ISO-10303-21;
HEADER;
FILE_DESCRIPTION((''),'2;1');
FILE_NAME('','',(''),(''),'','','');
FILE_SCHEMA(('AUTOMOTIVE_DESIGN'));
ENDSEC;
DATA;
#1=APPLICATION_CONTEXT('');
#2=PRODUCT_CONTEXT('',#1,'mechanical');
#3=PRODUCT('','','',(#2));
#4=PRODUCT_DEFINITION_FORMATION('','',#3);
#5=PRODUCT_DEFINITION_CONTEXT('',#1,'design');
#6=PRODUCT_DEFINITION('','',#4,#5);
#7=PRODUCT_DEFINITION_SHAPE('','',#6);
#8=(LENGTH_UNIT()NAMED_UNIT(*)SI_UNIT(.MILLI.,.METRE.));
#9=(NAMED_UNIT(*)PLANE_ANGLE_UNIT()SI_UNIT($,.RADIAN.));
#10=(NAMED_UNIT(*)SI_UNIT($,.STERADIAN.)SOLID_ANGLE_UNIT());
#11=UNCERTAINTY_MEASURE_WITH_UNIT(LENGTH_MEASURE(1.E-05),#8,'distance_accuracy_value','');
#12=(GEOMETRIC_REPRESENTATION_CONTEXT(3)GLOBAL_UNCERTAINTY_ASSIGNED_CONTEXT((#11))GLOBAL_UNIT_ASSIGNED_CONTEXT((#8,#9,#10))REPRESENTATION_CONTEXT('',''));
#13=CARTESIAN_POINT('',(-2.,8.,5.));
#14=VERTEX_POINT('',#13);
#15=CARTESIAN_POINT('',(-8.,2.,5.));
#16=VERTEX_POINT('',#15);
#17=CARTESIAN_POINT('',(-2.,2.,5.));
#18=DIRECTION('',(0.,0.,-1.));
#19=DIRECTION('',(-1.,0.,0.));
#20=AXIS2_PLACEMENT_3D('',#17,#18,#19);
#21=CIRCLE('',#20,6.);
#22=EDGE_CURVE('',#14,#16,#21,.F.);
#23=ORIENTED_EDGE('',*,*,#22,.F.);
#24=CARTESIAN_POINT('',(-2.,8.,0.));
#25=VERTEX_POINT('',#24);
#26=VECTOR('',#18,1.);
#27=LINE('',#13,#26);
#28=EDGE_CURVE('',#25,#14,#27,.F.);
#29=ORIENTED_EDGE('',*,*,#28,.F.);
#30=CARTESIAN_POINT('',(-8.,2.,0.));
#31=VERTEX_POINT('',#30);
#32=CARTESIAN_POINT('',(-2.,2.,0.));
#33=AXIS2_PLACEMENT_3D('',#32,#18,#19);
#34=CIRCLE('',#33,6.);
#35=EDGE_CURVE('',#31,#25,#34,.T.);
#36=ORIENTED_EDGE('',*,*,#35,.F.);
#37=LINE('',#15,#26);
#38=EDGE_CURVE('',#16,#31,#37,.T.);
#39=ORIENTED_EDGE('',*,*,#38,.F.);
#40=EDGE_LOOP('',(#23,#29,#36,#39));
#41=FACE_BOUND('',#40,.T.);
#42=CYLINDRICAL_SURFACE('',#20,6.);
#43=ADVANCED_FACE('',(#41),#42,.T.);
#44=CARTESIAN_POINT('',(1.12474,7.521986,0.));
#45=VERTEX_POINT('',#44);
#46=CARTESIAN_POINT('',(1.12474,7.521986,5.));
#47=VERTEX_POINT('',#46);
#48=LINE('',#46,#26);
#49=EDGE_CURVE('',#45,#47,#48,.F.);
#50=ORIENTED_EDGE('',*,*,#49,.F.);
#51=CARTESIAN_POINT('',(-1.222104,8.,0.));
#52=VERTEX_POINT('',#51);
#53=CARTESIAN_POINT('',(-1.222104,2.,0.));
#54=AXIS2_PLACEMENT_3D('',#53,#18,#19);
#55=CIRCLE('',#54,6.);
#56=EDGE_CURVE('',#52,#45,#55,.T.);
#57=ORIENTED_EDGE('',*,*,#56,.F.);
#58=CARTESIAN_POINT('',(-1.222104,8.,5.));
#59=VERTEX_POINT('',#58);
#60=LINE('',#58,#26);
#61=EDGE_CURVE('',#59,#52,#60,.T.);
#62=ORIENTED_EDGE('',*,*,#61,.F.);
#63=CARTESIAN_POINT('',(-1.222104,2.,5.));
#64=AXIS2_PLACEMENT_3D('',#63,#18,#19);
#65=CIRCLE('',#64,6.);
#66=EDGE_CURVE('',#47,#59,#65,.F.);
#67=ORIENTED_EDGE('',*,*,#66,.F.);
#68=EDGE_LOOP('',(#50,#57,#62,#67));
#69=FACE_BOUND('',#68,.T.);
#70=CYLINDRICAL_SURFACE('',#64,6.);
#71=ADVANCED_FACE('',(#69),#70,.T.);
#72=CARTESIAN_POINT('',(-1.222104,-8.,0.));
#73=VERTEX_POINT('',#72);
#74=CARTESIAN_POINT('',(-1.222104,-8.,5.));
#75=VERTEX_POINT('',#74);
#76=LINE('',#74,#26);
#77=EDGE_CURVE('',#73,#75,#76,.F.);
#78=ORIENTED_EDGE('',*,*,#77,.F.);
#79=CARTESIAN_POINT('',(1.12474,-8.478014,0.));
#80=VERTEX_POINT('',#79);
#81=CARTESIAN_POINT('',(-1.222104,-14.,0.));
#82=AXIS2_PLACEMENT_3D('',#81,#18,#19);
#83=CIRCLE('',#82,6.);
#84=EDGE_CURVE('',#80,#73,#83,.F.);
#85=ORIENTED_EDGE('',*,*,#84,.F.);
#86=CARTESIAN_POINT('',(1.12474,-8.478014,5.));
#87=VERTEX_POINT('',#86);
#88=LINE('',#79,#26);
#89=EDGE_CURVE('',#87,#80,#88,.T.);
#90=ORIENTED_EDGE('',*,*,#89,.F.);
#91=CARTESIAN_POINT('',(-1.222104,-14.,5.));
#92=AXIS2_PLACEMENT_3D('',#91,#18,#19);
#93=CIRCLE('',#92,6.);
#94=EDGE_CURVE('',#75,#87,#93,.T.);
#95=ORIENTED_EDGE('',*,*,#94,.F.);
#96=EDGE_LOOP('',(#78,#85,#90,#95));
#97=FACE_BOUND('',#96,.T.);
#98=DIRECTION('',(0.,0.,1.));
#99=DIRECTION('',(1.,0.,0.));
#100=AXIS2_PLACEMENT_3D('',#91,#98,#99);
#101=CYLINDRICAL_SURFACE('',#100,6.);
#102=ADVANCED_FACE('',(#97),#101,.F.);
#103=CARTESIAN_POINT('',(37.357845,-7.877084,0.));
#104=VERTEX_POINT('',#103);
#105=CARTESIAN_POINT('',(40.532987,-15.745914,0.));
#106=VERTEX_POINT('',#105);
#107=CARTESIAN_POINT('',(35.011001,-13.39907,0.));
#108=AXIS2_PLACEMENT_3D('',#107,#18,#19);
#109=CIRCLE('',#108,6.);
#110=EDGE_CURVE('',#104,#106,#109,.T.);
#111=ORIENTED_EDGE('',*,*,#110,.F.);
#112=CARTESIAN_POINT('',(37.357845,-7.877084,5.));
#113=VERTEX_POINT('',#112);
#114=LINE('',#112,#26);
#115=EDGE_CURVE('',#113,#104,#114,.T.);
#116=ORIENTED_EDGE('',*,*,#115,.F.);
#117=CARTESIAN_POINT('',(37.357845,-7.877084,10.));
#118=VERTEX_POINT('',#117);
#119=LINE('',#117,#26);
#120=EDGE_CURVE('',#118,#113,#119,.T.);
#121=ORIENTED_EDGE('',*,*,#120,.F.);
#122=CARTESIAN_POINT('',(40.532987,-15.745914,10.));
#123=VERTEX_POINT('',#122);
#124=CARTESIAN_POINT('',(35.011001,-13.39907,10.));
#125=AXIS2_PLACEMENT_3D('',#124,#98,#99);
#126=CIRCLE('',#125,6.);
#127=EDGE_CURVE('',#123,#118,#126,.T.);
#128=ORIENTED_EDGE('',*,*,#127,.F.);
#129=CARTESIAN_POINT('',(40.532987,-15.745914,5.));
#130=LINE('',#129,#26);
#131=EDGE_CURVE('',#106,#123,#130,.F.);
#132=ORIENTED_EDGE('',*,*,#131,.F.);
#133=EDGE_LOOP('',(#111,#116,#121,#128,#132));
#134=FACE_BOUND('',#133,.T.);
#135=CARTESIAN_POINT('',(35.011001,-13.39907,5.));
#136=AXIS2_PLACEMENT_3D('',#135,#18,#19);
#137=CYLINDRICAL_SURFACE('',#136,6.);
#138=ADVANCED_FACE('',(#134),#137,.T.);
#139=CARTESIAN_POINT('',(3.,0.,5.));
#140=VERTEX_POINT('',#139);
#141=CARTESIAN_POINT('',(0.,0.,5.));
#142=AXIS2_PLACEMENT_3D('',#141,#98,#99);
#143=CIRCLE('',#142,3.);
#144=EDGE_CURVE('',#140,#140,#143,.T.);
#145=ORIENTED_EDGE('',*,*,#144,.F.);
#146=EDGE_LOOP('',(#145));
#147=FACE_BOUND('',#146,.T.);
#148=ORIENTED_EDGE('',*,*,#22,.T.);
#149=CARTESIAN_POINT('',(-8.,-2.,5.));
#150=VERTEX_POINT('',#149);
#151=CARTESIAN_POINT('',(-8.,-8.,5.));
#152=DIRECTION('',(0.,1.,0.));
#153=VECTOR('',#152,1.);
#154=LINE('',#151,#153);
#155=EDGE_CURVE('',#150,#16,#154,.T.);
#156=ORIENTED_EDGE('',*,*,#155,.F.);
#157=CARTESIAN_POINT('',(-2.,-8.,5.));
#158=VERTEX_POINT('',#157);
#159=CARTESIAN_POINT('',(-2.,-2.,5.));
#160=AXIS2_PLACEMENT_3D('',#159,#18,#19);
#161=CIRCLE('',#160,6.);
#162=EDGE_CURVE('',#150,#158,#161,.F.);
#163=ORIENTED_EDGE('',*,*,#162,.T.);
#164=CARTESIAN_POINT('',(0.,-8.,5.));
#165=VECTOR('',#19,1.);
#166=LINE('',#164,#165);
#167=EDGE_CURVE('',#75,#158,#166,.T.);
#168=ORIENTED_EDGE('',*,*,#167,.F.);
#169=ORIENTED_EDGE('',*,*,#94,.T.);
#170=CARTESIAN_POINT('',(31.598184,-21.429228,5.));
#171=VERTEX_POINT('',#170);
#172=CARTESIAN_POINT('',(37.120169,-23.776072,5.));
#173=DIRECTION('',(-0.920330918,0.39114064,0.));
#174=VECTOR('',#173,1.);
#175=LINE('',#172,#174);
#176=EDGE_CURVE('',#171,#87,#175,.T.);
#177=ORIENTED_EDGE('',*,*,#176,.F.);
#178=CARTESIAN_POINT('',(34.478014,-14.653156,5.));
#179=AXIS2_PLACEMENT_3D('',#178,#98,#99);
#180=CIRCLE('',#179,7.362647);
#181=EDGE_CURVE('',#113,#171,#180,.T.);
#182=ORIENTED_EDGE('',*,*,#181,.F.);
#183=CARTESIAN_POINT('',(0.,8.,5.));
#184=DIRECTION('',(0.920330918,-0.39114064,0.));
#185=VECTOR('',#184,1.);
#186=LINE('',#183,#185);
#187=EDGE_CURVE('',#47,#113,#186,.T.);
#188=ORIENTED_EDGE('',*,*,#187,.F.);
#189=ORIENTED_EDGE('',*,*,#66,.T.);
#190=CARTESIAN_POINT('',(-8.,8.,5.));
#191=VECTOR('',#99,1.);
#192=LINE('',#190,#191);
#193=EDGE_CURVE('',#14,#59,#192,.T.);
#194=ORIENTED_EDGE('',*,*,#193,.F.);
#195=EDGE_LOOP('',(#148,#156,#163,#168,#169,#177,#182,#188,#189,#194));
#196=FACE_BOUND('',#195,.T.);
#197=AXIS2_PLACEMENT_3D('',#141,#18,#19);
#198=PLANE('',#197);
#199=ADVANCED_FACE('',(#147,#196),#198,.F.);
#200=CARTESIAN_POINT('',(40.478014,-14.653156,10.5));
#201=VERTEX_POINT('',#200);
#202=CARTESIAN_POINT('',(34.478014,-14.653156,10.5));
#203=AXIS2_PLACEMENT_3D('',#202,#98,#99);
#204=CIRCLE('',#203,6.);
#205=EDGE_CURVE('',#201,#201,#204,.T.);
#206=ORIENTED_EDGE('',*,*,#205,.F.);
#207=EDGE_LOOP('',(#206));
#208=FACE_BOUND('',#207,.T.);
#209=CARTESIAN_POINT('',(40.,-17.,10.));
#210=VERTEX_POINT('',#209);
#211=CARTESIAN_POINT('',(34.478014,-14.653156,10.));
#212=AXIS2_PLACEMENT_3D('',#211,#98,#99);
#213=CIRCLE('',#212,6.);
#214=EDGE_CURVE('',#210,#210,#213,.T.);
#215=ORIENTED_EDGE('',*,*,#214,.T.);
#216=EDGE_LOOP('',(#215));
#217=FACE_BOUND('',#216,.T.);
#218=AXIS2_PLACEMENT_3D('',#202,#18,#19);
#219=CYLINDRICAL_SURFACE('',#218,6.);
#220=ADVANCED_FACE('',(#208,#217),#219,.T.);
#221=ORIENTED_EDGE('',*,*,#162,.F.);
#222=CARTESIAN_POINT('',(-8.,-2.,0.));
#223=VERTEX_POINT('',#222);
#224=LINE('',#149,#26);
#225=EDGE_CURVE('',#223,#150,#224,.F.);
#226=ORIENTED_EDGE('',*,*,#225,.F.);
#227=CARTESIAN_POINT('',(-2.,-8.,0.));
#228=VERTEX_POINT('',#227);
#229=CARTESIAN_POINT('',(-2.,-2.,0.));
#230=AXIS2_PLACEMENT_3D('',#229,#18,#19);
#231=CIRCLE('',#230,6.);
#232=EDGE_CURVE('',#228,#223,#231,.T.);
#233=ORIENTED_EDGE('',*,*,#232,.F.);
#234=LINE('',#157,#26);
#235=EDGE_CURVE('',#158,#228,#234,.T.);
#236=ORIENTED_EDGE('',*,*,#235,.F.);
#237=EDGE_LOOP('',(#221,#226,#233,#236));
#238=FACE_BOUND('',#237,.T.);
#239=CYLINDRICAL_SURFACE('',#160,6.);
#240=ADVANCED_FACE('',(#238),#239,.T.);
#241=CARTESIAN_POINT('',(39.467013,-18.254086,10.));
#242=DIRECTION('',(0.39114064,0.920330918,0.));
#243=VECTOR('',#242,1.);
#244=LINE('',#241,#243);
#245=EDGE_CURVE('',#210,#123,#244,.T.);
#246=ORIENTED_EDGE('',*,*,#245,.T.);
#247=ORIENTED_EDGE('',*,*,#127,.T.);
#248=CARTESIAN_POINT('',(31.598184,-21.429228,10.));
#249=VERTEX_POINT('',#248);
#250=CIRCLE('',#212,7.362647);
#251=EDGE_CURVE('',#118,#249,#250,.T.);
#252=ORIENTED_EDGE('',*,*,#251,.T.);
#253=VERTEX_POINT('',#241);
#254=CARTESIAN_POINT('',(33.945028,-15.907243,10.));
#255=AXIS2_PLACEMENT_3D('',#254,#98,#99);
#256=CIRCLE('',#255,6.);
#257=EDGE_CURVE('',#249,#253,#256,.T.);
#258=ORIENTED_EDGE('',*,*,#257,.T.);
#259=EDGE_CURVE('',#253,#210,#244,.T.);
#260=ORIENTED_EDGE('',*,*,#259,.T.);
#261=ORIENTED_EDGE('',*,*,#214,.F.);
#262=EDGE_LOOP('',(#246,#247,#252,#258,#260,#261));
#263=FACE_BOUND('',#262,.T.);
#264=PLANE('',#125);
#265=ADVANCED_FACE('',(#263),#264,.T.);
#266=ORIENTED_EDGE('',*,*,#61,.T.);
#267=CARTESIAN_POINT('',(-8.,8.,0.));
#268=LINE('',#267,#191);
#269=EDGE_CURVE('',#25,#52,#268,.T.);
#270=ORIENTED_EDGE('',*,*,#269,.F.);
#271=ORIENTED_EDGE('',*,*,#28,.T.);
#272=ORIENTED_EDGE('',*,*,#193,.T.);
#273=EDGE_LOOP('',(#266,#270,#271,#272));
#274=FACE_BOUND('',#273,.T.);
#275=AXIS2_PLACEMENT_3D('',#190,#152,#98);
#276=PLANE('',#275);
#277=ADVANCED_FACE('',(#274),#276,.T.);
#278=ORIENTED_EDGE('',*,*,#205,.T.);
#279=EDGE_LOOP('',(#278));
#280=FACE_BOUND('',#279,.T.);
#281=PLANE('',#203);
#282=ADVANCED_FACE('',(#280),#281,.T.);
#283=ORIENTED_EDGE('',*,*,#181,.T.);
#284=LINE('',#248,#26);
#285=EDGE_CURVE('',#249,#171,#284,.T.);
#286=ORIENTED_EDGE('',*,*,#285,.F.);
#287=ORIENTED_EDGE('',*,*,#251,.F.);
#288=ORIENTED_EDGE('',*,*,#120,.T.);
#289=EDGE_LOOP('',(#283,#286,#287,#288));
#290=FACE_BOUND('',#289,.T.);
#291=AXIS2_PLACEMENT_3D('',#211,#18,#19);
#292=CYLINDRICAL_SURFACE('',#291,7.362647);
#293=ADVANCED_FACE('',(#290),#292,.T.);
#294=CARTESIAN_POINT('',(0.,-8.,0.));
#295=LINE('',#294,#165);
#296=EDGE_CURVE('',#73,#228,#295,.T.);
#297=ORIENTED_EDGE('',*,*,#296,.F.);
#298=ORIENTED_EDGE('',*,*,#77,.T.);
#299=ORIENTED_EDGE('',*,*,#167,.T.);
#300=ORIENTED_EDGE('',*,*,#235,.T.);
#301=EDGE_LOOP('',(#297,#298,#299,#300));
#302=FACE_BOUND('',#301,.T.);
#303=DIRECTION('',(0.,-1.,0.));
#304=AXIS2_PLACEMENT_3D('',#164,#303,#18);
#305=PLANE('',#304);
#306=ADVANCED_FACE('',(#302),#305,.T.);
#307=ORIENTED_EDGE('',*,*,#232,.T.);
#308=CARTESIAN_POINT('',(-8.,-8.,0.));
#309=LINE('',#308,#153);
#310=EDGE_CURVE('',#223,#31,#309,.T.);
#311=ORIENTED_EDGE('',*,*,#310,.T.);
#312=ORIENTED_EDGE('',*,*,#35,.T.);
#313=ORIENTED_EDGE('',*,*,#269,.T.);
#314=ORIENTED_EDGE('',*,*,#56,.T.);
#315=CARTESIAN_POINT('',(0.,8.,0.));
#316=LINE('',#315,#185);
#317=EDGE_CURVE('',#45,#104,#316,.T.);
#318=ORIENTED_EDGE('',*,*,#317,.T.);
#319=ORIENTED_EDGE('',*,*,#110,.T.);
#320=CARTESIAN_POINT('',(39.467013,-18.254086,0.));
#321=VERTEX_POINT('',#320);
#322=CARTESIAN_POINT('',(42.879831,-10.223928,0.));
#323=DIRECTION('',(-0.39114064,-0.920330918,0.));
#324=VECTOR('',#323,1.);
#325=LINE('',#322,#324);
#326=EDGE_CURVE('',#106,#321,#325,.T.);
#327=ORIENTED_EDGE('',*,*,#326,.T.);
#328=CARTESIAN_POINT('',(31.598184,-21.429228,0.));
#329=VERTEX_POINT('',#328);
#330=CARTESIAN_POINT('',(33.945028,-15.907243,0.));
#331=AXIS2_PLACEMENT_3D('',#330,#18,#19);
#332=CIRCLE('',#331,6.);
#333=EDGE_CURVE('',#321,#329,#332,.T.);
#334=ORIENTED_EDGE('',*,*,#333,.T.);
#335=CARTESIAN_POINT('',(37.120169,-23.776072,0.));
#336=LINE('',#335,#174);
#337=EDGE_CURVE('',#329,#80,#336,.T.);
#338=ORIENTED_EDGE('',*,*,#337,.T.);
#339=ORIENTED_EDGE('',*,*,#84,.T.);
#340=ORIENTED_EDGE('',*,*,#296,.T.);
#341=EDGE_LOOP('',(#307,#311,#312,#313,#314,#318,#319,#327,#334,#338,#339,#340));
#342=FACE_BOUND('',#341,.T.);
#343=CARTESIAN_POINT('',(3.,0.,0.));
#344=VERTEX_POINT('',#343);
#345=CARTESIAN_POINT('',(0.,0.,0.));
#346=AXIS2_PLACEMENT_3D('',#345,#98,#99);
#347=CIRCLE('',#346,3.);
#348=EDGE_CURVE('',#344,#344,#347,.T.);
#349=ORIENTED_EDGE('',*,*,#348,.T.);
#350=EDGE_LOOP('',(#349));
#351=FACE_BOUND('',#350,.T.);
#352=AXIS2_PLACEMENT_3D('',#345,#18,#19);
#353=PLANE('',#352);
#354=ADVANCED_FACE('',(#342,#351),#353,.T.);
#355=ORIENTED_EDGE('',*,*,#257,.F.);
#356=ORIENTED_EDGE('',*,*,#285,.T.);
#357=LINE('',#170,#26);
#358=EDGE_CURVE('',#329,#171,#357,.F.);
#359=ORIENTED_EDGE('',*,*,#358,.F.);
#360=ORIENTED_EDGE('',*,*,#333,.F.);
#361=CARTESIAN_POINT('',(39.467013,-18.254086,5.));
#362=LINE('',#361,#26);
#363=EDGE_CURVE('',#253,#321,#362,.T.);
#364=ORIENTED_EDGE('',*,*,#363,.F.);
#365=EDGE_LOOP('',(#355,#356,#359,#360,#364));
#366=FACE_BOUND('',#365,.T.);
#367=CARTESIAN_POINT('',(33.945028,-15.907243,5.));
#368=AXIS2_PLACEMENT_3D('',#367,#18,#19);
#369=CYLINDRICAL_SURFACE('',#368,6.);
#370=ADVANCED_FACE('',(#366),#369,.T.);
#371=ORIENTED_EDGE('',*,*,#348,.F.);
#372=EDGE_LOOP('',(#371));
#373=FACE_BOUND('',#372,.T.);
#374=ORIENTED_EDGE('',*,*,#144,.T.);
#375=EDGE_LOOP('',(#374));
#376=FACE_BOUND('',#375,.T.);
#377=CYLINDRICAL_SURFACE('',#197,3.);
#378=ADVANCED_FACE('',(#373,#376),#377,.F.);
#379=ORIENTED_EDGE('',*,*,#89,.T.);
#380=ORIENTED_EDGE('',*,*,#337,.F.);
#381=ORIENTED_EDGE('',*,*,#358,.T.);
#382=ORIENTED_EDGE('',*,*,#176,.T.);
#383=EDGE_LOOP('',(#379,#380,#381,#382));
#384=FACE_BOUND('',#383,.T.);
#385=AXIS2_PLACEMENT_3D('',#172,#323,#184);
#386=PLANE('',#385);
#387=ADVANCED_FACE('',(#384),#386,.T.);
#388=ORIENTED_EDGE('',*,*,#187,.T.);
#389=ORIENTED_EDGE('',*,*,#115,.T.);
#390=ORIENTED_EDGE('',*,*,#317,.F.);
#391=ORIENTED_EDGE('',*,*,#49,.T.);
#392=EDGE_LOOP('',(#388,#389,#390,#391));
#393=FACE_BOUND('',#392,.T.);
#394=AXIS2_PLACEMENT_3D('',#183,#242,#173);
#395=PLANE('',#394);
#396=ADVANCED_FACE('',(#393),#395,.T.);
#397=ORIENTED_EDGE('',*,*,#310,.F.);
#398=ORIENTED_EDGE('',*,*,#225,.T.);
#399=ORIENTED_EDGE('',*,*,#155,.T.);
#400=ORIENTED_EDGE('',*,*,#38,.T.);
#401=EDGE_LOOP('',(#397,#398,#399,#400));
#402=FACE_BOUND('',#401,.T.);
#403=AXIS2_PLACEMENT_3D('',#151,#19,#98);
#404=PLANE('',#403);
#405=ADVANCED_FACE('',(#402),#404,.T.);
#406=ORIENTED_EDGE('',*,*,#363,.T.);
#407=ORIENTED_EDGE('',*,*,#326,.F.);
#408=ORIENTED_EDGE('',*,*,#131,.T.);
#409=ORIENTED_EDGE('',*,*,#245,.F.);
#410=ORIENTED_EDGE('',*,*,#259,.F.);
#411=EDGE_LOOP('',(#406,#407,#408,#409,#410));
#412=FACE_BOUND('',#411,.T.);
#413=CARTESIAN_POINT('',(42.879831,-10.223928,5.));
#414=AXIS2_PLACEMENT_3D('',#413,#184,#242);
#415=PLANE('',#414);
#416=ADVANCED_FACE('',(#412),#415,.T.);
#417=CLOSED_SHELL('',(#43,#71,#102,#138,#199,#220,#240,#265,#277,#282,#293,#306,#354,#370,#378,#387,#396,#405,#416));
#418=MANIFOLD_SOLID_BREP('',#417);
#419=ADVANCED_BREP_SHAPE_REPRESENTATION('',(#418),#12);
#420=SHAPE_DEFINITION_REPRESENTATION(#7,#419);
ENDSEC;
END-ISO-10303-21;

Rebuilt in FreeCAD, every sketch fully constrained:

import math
import FreeCAD as App
import Part
import Sketcher

V = App.Vector


def edges_at(feature, points):
    """Names of the edges that pass closest to the given points."""
    edges = feature.Shape.Edges
    near = lambda p: min(range(len(edges)), key=lambda i: edges[i].distToShape(Part.Vertex(*p))[0])
    return sorted({f"Edge{near(p) + 1}" for p in points})


def add_polygon(sketch, points):
    """Adds a closed chain of lines whose ends are joined by coincident constraints."""
    first, n = sketch.GeometryCount, len(points)
    for a, b in zip(points, points[1:] + points[:1]):
        sketch.addGeometry(Part.LineSegment(App.Vector(*a, 0), App.Vector(*b, 0)), False)
    for i in range(n):
        sketch.addConstraint(Sketcher.Constraint("Coincident", first + i, 2, first + (i + 1) % n, 1))

doc = App.newDocument("Part")
body = doc.addObject("PartDesign::Body", "Body")

# Sketch on XY plane
sketch1 = body.newObject("Sketcher::SketchObject", "Sketch")
sketch1.AttachmentSupport = (doc.getObject("XY_Plane"), [""])
sketch1.MapMode = "FlatFace"
add_polygon(sketch1, [(-8, 8), (-8, -8), (0, -8), (37.1, -23.8), (42.9, -10.2), (0, 8)])  # lines 0-5
sketch1.addGeometry(Part.Circle(V(0, 0, 0), V(0, 0, 1), 3), False)  # 6
sketch1.addConstraint([
    Sketcher.Constraint("Vertical", 0),
    Sketcher.Constraint("Horizontal", 1),
    Sketcher.Constraint("Horizontal", 5),
    Sketcher.Constraint("Coincident", 6, 3, -1, 1),
    Sketcher.Constraint("Symmetric", 1, 2, 4, 2, -1, 1),
    Sketcher.Constraint("PointOnObject", 1, 2, -2),
    Sketcher.Constraint("Perpendicular", 2, 3),
    Sketcher.Constraint("Perpendicular", 3, 4),
    Sketcher.Constraint("Diameter", 6, 6.0),
    Sketcher.Constraint("DistanceX", 1, 1, 1, 2, 8.0),
    Sketcher.Constraint("DistanceY", 0, 2, 0, 1, 16.0),
    Sketcher.Constraint("DistanceX", -1, 1, 2, 2, 37.120169),
    Sketcher.Constraint("DistanceY", 2, 2, -1, 1, 23.776072),
])
pad1 = body.newObject("PartDesign::Pad", "Pad")
pad1.Profile = sketch1
pad1.Length = 5
doc.recompute()

fillet = body.newObject("PartDesign::Fillet", "Fillet")
fillet.Base = (pad1, edges_at(pad1, [
    (-8, -8, 2.5),
    (0, -8, 2.5),
    (37.12, -23.776, 2.5),
    (42.88, -10.224, 2.5),
    (0, 8, 2.5),
    (-8, 8, 2.5),
]))
fillet.Radius = 6

# Sketch on XY plane
sketch2 = body.newObject("Sketcher::SketchObject", "Sketch001")
sketch2.AttachmentSupport = (doc.getObject("XY_Plane"), [""])
sketch2.MapMode = "FlatFace"
sketch2.AttachmentOffset = App.Placement(V(0, 0, 5), App.Rotation())
sketch2.addGeometry([
    Part.LineSegment(V(39.5, -18.3, 0), V(40.5, -15.7, 0)),  # 0
    Part.ArcOfCircle(Part.Circle(V(35, -13.4, 0), V(0, 0, 1), 6), math.radians(-23), math.radians(67)),  # 1
    Part.ArcOfCircle(Part.Circle(V(34.5, -14.7, 0), V(0, 0, 1), 7.4), math.radians(66.97), math.radians(80.3)),  # 2
    Part.ArcOfCircle(Part.Circle(V(34.5, -14.7, 0), V(0, 0, 1), 7.4), math.radians(80), math.radians(247)),  # 3
    Part.ArcOfCircle(Part.Circle(V(33.9, -15.9, 0), V(0, 0, 1), 6), math.radians(-113), math.radians(-23)),  # 4
], False)
sketch2.addConstraint([
    Sketcher.Constraint("Tangent", 0, 2, 1, 1),
    Sketcher.Constraint("Tangent", 1, 2, 2, 1),
    Sketcher.Constraint("Tangent", 2, 2, 3, 1),
    Sketcher.Constraint("Tangent", 3, 2, 4, 1),
    Sketcher.Constraint("Tangent", 4, 2, 0, 1),
    Sketcher.Constraint("Equal", 2, 3),
    Sketcher.Constraint("Equal", 1, 4),
    Sketcher.Constraint("Radius", 1, 6.0),
    Sketcher.Constraint("DistanceX", -1, 1, 1, 3, 35.011001),
    Sketcher.Constraint("Radius", 2, 7.362647),
    Sketcher.Constraint("DistanceX", 2, 3, 4, 2, 4.988999),
    Sketcher.Constraint("DistanceY", 1, 3, -1, 1, 13.39907),
    Sketcher.Constraint("DistanceY", 2, 2, -1, 1, 7.395728),
    Sketcher.Constraint("DistanceY", 3, 2, -1, 1, 21.429228),
])
pad2 = body.newObject("PartDesign::Pad", "Pad001")
pad2.Profile = sketch2
pad2.Length = 5

# Sketch on XY plane
sketch3 = body.newObject("Sketcher::SketchObject", "Sketch002")
sketch3.AttachmentSupport = (doc.getObject("XY_Plane"), [""])
sketch3.MapMode = "FlatFace"
sketch3.AttachmentOffset = App.Placement(V(0, 0, 10), App.Rotation())
sketch3.addGeometry(Part.Circle(V(34, -15, 0), V(0, 0, 1), 6), False)
sketch3.addConstraint([
    Sketcher.Constraint("Diameter", 0, 12.0),
    Sketcher.Constraint("DistanceX", -1, 1, 0, 3, 34.478014),
    Sketcher.Constraint("DistanceY", 0, 3, -1, 1, 14.653156),
])
pad3 = body.newObject("PartDesign::Pad", "Pad002")
pad3.Profile = sketch3
pad3.Length = 0.5

doc.recompute()
